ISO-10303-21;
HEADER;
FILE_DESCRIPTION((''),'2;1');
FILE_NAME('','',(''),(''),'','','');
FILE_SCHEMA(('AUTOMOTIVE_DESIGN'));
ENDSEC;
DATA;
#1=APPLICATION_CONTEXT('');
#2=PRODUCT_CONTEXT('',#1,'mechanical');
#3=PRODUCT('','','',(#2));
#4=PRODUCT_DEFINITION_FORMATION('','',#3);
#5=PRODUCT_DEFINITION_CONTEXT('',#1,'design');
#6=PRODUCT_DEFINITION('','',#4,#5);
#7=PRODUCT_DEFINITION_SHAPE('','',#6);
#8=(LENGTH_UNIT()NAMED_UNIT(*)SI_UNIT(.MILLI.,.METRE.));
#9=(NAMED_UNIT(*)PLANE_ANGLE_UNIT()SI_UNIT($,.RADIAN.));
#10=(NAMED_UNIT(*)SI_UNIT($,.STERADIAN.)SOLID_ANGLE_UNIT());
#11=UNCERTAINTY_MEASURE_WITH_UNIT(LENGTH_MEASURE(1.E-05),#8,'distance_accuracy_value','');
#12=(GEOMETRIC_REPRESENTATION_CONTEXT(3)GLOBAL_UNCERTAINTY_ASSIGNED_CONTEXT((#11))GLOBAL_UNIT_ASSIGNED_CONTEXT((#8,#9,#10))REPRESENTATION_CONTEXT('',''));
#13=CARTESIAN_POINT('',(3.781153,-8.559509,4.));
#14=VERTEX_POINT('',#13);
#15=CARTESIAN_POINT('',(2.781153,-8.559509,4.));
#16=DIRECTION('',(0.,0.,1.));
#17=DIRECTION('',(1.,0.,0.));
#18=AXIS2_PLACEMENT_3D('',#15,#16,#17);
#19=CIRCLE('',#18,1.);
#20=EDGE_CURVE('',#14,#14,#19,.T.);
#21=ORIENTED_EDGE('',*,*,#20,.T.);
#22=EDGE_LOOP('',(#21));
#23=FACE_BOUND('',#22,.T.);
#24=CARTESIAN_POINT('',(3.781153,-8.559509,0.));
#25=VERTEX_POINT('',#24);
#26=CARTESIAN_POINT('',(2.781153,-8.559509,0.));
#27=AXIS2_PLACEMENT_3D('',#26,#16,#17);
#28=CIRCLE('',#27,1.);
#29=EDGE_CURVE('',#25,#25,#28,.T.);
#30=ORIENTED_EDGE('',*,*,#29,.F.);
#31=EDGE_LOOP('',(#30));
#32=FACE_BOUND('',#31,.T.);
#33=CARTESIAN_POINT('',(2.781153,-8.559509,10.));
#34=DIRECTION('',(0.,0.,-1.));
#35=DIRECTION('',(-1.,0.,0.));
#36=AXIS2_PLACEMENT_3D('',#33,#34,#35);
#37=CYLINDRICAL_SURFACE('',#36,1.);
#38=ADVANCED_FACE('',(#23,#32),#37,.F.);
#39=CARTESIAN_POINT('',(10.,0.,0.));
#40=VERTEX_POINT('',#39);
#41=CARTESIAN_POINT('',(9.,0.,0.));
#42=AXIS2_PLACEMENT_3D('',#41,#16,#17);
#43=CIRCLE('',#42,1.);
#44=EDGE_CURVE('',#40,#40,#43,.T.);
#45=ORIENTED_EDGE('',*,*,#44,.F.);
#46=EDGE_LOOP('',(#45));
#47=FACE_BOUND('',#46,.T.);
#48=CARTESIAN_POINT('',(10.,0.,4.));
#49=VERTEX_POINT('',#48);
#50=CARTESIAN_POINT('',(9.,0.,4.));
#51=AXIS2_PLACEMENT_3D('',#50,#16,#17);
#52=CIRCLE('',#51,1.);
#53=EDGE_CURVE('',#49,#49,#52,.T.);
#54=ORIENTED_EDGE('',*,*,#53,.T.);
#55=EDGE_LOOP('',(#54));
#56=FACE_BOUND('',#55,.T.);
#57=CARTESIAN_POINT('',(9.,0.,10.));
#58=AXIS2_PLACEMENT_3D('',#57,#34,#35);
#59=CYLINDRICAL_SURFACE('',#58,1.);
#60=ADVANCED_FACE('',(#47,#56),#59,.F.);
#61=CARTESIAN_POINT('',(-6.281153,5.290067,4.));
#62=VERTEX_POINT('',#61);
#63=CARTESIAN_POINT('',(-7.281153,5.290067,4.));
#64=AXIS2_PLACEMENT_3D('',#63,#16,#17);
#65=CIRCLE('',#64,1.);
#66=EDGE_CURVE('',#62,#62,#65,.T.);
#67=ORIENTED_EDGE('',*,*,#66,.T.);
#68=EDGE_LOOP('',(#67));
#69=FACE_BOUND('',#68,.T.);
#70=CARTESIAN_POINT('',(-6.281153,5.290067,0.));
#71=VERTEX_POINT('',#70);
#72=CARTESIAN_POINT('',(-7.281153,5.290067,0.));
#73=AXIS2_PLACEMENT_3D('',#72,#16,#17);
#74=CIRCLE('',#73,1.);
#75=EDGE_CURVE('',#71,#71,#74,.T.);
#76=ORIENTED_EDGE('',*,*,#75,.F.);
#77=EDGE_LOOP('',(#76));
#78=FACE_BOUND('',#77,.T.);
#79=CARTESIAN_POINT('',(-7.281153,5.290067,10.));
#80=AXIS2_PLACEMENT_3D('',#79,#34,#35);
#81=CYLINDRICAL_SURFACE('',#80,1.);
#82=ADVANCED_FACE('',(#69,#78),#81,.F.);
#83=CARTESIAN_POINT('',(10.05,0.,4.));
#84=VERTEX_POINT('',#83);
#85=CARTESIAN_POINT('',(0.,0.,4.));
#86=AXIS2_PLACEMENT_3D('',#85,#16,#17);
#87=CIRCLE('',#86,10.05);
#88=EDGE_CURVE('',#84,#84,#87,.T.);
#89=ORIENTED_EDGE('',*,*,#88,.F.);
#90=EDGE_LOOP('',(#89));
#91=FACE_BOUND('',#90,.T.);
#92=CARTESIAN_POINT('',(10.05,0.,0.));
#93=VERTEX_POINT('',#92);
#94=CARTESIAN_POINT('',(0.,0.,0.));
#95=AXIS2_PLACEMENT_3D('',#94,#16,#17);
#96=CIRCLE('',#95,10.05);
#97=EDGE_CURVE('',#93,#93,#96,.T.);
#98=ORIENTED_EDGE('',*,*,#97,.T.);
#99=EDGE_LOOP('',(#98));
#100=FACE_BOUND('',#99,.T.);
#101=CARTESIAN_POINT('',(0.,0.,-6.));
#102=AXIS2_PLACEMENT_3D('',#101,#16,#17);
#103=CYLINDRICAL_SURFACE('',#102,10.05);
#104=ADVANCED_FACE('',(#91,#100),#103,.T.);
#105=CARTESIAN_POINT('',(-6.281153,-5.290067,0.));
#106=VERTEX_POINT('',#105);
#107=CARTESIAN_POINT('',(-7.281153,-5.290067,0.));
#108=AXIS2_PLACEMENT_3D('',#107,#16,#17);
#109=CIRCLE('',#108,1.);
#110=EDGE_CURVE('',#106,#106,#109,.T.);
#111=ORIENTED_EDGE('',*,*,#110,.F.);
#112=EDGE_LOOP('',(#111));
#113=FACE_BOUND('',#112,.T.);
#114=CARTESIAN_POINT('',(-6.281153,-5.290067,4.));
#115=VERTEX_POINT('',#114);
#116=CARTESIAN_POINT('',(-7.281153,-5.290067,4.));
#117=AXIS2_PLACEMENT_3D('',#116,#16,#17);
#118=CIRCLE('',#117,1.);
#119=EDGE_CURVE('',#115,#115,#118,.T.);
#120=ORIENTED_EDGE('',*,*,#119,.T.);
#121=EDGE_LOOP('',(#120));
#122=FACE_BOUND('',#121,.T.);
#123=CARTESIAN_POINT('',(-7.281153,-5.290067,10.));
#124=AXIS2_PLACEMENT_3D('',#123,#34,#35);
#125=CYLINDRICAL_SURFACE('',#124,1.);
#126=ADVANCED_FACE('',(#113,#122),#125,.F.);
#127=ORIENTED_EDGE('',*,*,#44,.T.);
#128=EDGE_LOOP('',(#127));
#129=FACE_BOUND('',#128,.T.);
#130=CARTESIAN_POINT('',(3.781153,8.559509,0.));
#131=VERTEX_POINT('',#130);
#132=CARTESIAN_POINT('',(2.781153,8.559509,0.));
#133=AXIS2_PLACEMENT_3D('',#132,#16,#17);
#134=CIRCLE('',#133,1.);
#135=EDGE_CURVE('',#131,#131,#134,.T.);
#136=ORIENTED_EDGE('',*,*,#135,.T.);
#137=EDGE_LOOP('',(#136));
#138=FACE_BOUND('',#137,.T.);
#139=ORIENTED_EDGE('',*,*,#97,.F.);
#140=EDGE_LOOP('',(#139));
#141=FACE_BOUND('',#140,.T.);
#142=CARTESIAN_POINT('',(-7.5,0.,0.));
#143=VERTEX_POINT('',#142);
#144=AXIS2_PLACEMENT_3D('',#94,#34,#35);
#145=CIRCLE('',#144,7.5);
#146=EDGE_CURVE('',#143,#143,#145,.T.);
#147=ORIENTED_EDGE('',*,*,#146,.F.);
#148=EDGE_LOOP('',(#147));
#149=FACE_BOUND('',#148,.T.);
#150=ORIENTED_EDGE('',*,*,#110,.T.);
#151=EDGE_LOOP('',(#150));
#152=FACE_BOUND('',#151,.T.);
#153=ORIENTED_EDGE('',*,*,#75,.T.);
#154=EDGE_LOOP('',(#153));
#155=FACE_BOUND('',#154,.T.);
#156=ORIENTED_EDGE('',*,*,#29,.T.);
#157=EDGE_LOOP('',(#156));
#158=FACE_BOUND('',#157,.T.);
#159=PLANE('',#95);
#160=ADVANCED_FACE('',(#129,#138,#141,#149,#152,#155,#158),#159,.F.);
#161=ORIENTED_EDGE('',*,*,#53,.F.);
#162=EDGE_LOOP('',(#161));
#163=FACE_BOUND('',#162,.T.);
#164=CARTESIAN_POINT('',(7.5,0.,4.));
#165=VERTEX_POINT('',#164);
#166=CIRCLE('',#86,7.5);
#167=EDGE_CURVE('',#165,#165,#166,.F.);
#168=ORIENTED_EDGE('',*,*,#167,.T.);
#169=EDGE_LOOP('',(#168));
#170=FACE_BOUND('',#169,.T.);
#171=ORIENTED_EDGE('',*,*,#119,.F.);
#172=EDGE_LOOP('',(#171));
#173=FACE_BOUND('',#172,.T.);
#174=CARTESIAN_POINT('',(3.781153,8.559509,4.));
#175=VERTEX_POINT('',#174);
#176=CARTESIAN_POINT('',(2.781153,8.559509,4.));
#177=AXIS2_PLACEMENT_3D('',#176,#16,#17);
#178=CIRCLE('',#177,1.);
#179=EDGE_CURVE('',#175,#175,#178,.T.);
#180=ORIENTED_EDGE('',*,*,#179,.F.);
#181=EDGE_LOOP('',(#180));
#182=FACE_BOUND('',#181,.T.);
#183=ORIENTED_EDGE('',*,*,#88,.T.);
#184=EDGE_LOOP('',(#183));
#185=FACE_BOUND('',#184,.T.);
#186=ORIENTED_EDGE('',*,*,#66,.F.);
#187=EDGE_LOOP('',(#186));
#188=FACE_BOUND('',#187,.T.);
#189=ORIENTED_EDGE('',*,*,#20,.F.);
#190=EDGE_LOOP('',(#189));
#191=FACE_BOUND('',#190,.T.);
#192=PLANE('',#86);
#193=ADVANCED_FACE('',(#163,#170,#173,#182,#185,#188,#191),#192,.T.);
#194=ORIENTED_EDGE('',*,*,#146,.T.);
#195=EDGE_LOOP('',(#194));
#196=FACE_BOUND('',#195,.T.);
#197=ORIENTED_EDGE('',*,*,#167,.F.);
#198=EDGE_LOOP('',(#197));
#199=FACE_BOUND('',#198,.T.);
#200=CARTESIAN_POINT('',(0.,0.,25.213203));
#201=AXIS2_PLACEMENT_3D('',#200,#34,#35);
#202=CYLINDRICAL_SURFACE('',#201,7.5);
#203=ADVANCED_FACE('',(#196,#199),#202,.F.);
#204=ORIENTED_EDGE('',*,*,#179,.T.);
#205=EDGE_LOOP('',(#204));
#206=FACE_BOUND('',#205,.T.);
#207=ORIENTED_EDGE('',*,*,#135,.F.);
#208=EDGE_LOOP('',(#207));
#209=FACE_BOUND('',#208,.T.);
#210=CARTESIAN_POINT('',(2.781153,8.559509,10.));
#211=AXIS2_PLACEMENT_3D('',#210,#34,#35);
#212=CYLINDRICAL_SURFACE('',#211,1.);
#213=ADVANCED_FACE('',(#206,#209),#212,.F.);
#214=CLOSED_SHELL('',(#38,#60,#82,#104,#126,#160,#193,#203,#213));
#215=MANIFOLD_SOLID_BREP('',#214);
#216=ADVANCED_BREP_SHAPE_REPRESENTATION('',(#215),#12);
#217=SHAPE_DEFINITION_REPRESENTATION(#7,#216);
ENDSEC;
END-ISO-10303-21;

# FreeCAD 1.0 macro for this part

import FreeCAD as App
import Part
import Sketcher

V = App.Vector
Q = App.Units.Quantity

doc = App.newDocument("Part")
body = doc.addObject("PartDesign::Body", "Body")

sketch1 = body.newObject("Sketcher::SketchObject", "Sketch")
sketch1.AttachmentSupport = (doc.getObject("XY_Plane"), [""])
sketch1.MapMode = "FlatFace"
sketch1.addGeometry([
    Part.Circle(V(0, 0, 0), V(0, 0, 1), 12),
    Part.Circle(V(-7.3, -5.3, 0), V(0, 0, 1), 1),
    Part.Circle(V(2.8, -8.6, 0), V(0, 0, 1), 1),
    Part.Circle(V(-7.3, 5.3, 0), V(0, 0, 1), 1),
    Part.Circle(V(9, 0, 0), V(0, 0, 1), 1),
    Part.Circle(V(2.8, 8.6, 0), V(0, 0, 1), 1),
], False)
sketch1.addConstraint([
    Sketcher.Constraint("Coincident", 0, 3, -1, 1),
    Sketcher.Constraint("Equal", 1, 2),
    Sketcher.Constraint("Equal", 2, 3),
    Sketcher.Constraint("Equal", 3, 4),
    Sketcher.Constraint("Equal", 4, 5),
    Sketcher.Constraint("Symmetric", 1, 3, 3, 3, -1),
    Sketcher.Constraint("Symmetric", 2, 3, 5, 3, -1),
    Sketcher.Constraint("PointOnObject", 4, 3, -1),
    Sketcher.Constraint("Diameter", 0, Q("24 mm")),
    Sketcher.Constraint("Diameter", 1, Q("2 mm")),
    Sketcher.Constraint("DistanceX", -1, 1, 4, 3, Q("9 mm")),
    Sketcher.Constraint("DistanceY", 2, 3, -1, 1, Q("8.559509 mm")),
    Sketcher.Constraint("DistanceY", 2, 3, 1, 3, Q("3.269441 mm")),
    Sketcher.Constraint("DistanceX", 1, 3, -1, 1, Q("7.281153 mm")),
    Sketcher.Constraint("DistanceX", -1, 1, 2, 3, Q("2.781153 mm")),
])
pad1 = body.newObject("PartDesign::Pad", "Pad")
pad1.Profile = sketch1
pad1.Length = 2

sketch2 = body.newObject("Sketcher::SketchObject", "Sketch001")
sketch2.AttachmentSupport = (doc.getObject("XY_Plane"), [""])
sketch2.MapMode = "FlatFace"
sketch2.AttachmentOffset = App.Placement(V(0, 0, 2), App.Rotation())
sketch2.addGeometry([
    Part.Circle(V(9, 0, 0), V(0, 0, 1), 1),
    Part.Circle(V(2.8, -8.6, 0), V(0, 0, 1), 1),
    Part.Circle(V(-7.3, -5.3, 0), V(0, 0, 1), 1),
    Part.Circle(V(-7.3, 5.3, 0), V(0, 0, 1), 1),
    Part.Circle(V(2.8, 8.6, 0), V(0, 0, 1), 1),
], False)
sketch2.addConstraint([
    Sketcher.Constraint("Equal", 0, 1),
    Sketcher.Constraint("Equal", 1, 2),
    Sketcher.Constraint("Equal", 2, 3),
    Sketcher.Constraint("Equal", 3, 4),
    Sketcher.Constraint("Symmetric", 2, 3, 3, 3, -1),
    Sketcher.Constraint("Symmetric", 1, 3, 4, 3, -1),
    Sketcher.Constraint("PointOnObject", 0, 3, -1),
    Sketcher.Constraint("Diameter", 0, Q("2 mm")),
    Sketcher.Constraint("DistanceX", -1, 1, 0, 3, Q("9 mm")),
    Sketcher.Constraint("DistanceY", 1, 3, -1, 1, Q("8.559509 mm")),
    Sketcher.Constraint("DistanceY", 1, 3, 2, 3, Q("3.269441 mm")),
    Sketcher.Constraint("DistanceX", -1, 1, 1, 3, Q("2.781153 mm")),
    Sketcher.Constraint("DistanceX", 2, 3, -1, 1, Q("7.281153 mm")),
])
pad2 = body.newObject("PartDesign::Pad", "Pad001")
pad2.Profile = sketch2
pad2.Length = 12
pad2.Reversed = True

sketch3 = body.newObject("Sketcher::SketchObject", "Sketch002")
sketch3.AttachmentSupport = (doc.getObject("XY_Plane"), [""])
sketch3.MapMode = "FlatFace"
sketch3.addGeometry(Part.Circle(V(0, 0, 0), V(0, 0, 1), 7), False)
sketch3.addConstraint([
    Sketcher.Constraint("Coincident", 0, 3, -1, 1),
    Sketcher.Constraint("Diameter", 0, Q("14 mm")),
])
pocket1 = body.newObject("PartDesign::Pocket", "Pocket")
pocket1.Profile = sketch3
pocket1.Length = 12
pocket1.Reversed = True

sketch4 = body.newObject("Sketcher::SketchObject", "Sketch003")
sketch4.AttachmentSupport = (doc.getObject("XY_Plane"), [""])
sketch4.MapMode = "FlatFace"
sketch4.addGeometry([
    Part.Circle(V(0, 0, 0), V(0, 0, 1), 12),
    Part.Circle(V(0, 0, 0), V(0, 0, 1), 12),
], False)
sketch4.addConstraint([
    Sketcher.Constraint("Coincident", 0, 3, -1, 1),
    Sketcher.Constraint("Coincident", 1, 3, -1, 1),
    Sketcher.Constraint("Diameter", 0, Q("24 mm")),
    Sketcher.Constraint("Diameter", 1, Q("23 mm")),
])
pocket2 = body.newObject("PartDesign::Pocket", "Pocket001")
pocket2.Profile = sketch4
pocket2.Length = 4
pocket2.Reversed = True

sketch5 = body.newObject("Sketcher::SketchObject", "Sketch004")
sketch5.AttachmentSupport = (doc.getObject("XY_Plane"), [""])
sketch5.MapMode = "FlatFace"
sketch5.AttachmentOffset = App.Placement(V(0, 0, 2), App.Rotation())
sketch5.addGeometry([
    Part.Circle(V(0, 0, 0), V(0, 0, 1), 12),
    Part.Circle(V(0, 0, 0), V(0, 0, 1), 7),
], False)
sketch5.addConstraint([
    Sketcher.Constraint("Coincident", 0, 3, -1, 1),
    Sketcher.Constraint("Coincident", 1, 3, -1, 1),
    Sketcher.Constraint("Diameter", 0, Q("23 mm")),
    Sketcher.Constraint("Diameter", 1, Q("14 mm")),
])
pad3 = body.newObject("PartDesign::Pad", "Pad002")
pad3.Profile = sketch5
pad3.Length = 2

sketch6 = body.newObject("Sketcher::SketchObject", "Sketch005")
sketch6.AttachmentSupport = (doc.getObject("XY_Plane"), [""])
sketch6.MapMode = "FlatFace"
sketch6.addGeometry(Part.Circle(V(0, 0, 0), V(0, 0, 1), 8), False)
sketch6.addConstraint([
    Sketcher.Constraint("Coincident", 0, 3, -1, 1),
    Sketcher.Constraint("Diameter", 0, Q("15 mm")),
])
pocket3 = body.newObject("PartDesign::Pocket", "Pocket002")
pocket3.Profile = sketch6
pocket3.Length = 4
pocket3.Reversed = True

sketch7 = body.newObject("Sketcher::SketchObject", "Sketch006")
sketch7.AttachmentSupport = (doc.getObject("XY_Plane"), [""])
sketch7.MapMode = "FlatFace"
sketch7.AttachmentOffset = App.Placement(V(0, 0, -10), App.Rotation())
sketch7.addGeometry([
    Part.Circle(V(2.8, -8.6, 0), V(0, 0, 1), 1),
    Part.Circle(V(-7.3, 5.3, 0), V(0, 0, 1), 1),
    Part.Circle(V(2.8, 8.6, 0), V(0, 0, 1), 1),
    Part.Circle(V(9, 0, 0), V(0, 0, 1), 1),
    Part.Circle(V(-7.3, -5.3, 0), V(0, 0, 1), 1),
], False)
sketch7.addConstraint([
    Sketcher.Constraint("Equal", 0, 1),
    Sketcher.Constraint("Equal", 1, 2),
    Sketcher.Constraint("Equal", 2, 3),
    Sketcher.Constraint("Equal", 3, 4),
    Sketcher.Constraint("Symmetric", 0, 3, 2, 3, -1),
    Sketcher.Constraint("Symmetric", 1, 3, 4, 3, -1),
    Sketcher.Constraint("PointOnObject", 3, 3, -1),
    Sketcher.Constraint("Diameter", 0, Q("2 mm")),
    Sketcher.Constraint("DistanceX", -1, 1, 3, 3, Q("9 mm")),
    Sketcher.Constraint("DistanceY", 0, 3, -1, 1, Q("8.559509 mm")),
    Sketcher.Constraint("DistanceY", 1, 3, 2, 3, Q("3.269441 mm")),
    Sketcher.Constraint("DistanceX", -1, 1, 0, 3, Q("2.781153 mm")),
    Sketcher.Constraint("DistanceX", 1, 3, -1, 1, Q("7.281153 mm")),
])
pocket4 = body.newObject("PartDesign::Pocket", "Pocket003")
pocket4.Profile = sketch7
pocket4.Length = 20
pocket4.Reversed = True

sketch8 = body.newObject("Sketcher::SketchObject", "Sketch007")
sketch8.AttachmentSupport = (doc.getObject("XY_Plane"), [""])
sketch8.MapMode = "FlatFace"
sketch8.AttachmentOffset = App.Placement(V(0, 0, 4), App.Rotation())
sketch8.addGeometry([
    Part.Circle(V(0, 0, 0), V(0, 0, 1), 12),
    Part.Circle(V(0, 0, 0), V(0, 0, 1), 10),
], False)
sketch8.addConstraint([
    Sketcher.Constraint("Coincident", 0, 3, -1, 1),
    Sketcher.Constraint("Coincident", 1, 3, -1, 1),
    Sketcher.Constraint("Diameter", 0, Q("23 mm")),
    Sketcher.Constraint("Diameter", 1, Q("20.1 mm")),
])
pocket5 = body.newObject("PartDesign::Pocket", "Pocket004")
pocket5.Profile = sketch8
pocket5.Length = 10

doc.recompute()
